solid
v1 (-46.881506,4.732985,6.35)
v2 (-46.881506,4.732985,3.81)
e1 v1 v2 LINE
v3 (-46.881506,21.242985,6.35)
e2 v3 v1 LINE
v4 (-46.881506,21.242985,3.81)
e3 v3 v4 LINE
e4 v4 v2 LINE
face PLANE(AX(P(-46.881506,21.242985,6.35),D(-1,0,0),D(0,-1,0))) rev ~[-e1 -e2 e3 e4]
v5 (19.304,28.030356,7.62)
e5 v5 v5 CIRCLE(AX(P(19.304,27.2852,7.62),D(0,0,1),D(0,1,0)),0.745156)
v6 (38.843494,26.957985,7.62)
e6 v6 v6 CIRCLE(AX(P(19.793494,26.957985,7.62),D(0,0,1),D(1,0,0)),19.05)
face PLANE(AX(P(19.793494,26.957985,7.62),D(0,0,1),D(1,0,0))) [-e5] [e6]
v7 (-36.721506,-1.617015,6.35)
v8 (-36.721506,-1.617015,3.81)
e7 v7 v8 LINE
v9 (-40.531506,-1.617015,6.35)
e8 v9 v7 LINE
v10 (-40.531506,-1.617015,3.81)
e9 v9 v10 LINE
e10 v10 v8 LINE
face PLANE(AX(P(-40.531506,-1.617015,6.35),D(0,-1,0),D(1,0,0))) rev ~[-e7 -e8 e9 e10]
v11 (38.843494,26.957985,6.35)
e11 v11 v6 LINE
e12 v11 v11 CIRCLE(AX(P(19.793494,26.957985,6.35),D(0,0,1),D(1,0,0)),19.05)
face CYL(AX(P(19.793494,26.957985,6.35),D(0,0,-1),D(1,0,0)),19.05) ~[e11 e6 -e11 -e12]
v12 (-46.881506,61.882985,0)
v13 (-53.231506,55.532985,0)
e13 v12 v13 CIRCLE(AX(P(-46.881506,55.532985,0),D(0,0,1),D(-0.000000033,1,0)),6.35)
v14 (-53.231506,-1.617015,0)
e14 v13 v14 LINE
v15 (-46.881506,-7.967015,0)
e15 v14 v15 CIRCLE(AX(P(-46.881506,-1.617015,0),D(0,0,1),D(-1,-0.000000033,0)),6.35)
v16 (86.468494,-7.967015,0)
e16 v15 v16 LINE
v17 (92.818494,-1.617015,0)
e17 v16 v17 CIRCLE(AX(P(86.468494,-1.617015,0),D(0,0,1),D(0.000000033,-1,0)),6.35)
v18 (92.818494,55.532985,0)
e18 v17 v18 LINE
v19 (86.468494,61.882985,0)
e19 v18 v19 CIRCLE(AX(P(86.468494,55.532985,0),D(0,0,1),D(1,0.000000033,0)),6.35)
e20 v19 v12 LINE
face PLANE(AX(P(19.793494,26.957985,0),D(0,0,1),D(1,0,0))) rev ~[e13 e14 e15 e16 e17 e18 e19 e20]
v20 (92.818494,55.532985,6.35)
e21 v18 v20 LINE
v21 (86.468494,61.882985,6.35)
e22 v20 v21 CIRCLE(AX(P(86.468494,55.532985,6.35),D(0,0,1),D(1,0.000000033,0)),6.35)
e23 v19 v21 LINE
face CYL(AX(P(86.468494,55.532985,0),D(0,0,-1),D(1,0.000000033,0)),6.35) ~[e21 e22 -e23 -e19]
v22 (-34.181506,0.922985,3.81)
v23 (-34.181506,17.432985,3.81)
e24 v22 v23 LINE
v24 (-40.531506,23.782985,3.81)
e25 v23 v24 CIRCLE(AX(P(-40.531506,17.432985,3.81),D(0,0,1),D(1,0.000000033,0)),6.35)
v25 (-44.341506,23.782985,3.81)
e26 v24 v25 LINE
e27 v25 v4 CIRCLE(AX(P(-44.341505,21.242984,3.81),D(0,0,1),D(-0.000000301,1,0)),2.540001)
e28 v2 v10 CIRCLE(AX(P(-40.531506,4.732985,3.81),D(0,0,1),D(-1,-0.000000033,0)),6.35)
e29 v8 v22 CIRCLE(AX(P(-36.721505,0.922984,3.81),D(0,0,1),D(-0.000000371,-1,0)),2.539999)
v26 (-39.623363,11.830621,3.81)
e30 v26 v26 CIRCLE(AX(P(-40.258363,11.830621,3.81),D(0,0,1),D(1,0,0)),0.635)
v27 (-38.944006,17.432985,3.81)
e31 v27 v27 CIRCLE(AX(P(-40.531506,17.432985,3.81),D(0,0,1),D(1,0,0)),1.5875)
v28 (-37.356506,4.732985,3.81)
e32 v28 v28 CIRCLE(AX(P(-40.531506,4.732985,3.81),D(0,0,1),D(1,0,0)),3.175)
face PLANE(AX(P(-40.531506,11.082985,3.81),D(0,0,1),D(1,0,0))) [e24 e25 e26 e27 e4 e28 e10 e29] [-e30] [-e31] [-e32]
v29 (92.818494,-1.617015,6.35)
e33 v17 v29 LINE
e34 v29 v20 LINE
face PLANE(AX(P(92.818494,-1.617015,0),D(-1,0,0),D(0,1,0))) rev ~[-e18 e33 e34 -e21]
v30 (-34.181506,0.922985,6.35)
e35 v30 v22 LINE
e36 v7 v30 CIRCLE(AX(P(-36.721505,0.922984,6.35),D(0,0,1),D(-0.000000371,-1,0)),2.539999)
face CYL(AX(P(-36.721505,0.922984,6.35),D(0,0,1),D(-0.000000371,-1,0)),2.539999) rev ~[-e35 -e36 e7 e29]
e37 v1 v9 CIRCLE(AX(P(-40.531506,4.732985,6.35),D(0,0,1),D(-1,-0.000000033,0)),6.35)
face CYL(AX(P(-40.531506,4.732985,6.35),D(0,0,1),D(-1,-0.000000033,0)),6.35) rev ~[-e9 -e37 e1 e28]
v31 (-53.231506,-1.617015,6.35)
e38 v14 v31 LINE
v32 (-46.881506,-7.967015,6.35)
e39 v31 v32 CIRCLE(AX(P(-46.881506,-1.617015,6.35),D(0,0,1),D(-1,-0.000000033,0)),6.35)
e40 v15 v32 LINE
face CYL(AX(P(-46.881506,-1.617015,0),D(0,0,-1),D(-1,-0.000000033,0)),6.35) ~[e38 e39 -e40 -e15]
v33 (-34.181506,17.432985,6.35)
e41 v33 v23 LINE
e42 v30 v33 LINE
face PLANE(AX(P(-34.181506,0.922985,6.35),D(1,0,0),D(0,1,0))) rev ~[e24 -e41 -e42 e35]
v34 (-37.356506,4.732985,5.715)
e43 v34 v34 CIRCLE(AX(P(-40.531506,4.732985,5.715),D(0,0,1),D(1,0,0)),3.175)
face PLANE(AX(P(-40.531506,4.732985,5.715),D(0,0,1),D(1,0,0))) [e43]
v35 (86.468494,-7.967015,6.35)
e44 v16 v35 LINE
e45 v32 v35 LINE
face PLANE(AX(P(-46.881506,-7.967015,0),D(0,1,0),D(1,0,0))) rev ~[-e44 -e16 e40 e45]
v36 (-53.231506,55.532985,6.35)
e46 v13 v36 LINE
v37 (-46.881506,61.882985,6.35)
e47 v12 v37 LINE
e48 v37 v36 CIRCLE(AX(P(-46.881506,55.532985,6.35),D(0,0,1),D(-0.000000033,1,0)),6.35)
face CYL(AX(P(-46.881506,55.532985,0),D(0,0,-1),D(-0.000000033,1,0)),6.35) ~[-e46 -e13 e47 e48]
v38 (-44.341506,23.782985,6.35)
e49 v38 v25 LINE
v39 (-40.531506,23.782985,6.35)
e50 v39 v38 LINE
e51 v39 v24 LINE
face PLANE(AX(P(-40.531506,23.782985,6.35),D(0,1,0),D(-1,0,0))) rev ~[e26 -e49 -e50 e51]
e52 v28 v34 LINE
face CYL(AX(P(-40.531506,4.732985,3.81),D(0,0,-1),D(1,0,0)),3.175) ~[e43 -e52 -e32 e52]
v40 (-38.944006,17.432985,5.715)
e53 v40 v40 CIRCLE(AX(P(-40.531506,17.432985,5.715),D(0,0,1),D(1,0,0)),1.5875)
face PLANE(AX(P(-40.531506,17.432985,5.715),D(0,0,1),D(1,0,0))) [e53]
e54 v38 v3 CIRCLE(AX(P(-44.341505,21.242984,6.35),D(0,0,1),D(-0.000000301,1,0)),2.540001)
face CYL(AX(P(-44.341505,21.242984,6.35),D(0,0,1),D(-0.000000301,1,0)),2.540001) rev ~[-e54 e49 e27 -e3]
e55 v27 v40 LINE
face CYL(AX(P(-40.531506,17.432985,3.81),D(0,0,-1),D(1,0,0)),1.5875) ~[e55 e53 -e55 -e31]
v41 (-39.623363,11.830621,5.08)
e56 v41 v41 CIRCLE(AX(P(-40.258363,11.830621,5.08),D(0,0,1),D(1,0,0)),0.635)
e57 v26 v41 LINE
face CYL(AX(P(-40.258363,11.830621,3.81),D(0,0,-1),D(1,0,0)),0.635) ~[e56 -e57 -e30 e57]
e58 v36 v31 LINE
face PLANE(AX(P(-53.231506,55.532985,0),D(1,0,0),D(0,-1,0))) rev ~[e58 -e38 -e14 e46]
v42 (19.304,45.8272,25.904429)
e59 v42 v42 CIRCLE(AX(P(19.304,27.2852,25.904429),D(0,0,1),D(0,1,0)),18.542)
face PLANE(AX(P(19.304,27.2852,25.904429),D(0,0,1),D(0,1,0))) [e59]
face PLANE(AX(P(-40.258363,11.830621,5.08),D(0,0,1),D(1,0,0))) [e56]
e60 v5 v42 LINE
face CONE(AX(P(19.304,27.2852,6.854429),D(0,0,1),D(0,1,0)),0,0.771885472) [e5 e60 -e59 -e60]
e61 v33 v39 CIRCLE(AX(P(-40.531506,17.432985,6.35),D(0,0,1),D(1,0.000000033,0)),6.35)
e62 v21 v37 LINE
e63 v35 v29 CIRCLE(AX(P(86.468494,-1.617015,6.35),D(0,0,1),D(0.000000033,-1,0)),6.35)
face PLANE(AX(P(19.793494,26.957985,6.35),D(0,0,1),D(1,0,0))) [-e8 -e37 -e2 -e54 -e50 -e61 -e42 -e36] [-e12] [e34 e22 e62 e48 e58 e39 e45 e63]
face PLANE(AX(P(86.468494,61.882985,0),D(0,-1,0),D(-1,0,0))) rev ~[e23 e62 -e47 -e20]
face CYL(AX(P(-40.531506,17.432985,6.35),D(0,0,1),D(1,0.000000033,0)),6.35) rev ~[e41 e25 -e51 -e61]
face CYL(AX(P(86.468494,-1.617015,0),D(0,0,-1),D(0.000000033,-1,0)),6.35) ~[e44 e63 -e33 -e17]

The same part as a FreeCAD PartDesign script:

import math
import FreeCAD as App
import Part
import Sketcher
Q = App.Units.Quantity


def add_polygon(sketch, points):
    """Adds a closed chain of lines whose ends are joined by coincident constraints."""
    first, n = sketch.GeometryCount, len(points)
    for a, b in zip(points, points[1:] + points[:1]):
        sketch.addGeometry(Part.LineSegment(App.Vector(*a, 0), App.Vector(*b, 0)), False)
    for i in range(n):
        sketch.addConstraint(Sketcher.Constraint("Coincident", first + i, 2, first + (i + 1) % n, 1))

doc = App.newDocument("Part")
body = doc.addObject("PartDesign::Body", "Body")

# Sketch on XY plane
sketch1 = body.newObject("Sketcher::SketchObject", "Sketch")
sketch1.AttachmentSupport = (doc.getObject("XY_Plane"), [""])
sketch1.MapMode = "FlatFace"
sketch1.addGeometry([
    Part.LineSegment(App.Vector(86, 62, 0), App.Vector(-47, 62, 0)),  # 0
    Part.ArcOfCircle(Part.Circle(App.Vector(-47, 56, 0), App.Vector(0, 0, 1), 6), math.radians(90), math.radians(180)),  # 1
    Part.LineSegment(App.Vector(-53, 56, 0), App.Vector(-53, -2, 0)),  # 2
    Part.ArcOfCircle(Part.Circle(App.Vector(-47, -2, 0), App.Vector(0, 0, 1), 6), math.radians(-180), math.radians(-90)),  # 3
    Part.LineSegment(App.Vector(-47, -8, 0), App.Vector(86, -8, 0)),  # 4
    Part.ArcOfCircle(Part.Circle(App.Vector(86, -2, 0), App.Vector(0, 0, 1), 6), math.radians(-90), math.radians(0)),  # 5
    Part.LineSegment(App.Vector(93, -2, 0), App.Vector(93, 56, 0)),  # 6
    Part.ArcOfCircle(Part.Circle(App.Vector(86, 56, 0), App.Vector(0, 0, 1), 6), math.radians(0), math.radians(90)),  # 7
], False)
sketch1.addConstraint([
    Sketcher.Constraint("Tangent", 0, 2, 1, 1),
    Sketcher.Constraint("Tangent", 1, 2, 2, 1),
    Sketcher.Constraint("Tangent", 2, 2, 3, 1),
    Sketcher.Constraint("Tangent", 3, 2, 4, 1),
    Sketcher.Constraint("Tangent", 4, 2, 5, 1),
    Sketcher.Constraint("Tangent", 5, 2, 6, 1),
    Sketcher.Constraint("Tangent", 6, 2, 7, 1),
    Sketcher.Constraint("Tangent", 7, 2, 0, 1),
    Sketcher.Constraint("Horizontal", 0),
    Sketcher.Constraint("Vertical", 2),
    Sketcher.Constraint("Horizontal", 4),
    Sketcher.Constraint("Vertical", 6),
    Sketcher.Constraint("Equal", 1, 3),
    Sketcher.Constraint("Equal", 3, 5),
    Sketcher.Constraint("Equal", 5, 7),
    Sketcher.Constraint("Radius", 1, Q("0.25 in")),
    Sketcher.Constraint("DistanceX", 0, 2, 0, 1, Q("5.25 in")),
    Sketcher.Constraint("DistanceY", 2, 2, 2, 1, Q("2.25 in")),
    Sketcher.Constraint("DistanceX", 1, 3, -1, 1, Q("46.881506 mm")),
    Sketcher.Constraint("DistanceY", -1, 1, 1, 3, Q("55.532985 mm")),
])
pad1 = body.newObject("PartDesign::Pad", "Pad")
pad1.Profile = sketch1
pad1.Length = Q("0.25 in")

# Sketch on XY plane
sketch2 = body.newObject("Sketcher::SketchObject", "Sketch001")
sketch2.AttachmentSupport = (doc.getObject("XY_Plane"), [""])
sketch2.MapMode = "FlatFace"
sketch2.AttachmentOffset = App.Placement(App.Vector(0, 0, 0.25 * 25.4), App.Rotation())
sketch2.addGeometry([
    Part.ArcOfCircle(Part.Circle(App.Vector(-40.5, 4.7, 0), App.Vector(0, 0, 1), 6.4), math.radians(-180), math.radians(-90)),  # 0
    Part.LineSegment(App.Vector(-40.5, -1.6, 0), App.Vector(-36.7, -1.6, 0)),  # 1
    Part.ArcOfCircle(Part.Circle(App.Vector(-36.7, 0.9, 0), App.Vector(0, 0, 1), 2.5), math.radians(-90), math.radians(0)),  # 2
    Part.LineSegment(App.Vector(-34.2, 0.9, 0), App.Vector(-34.2, 17.4, 0)),  # 3
    Part.ArcOfCircle(Part.Circle(App.Vector(-40.5, 17.4, 0), App.Vector(0, 0, 1), 6.4), math.radians(0), math.radians(90)),  # 4
    Part.LineSegment(App.Vector(-40.5, 23.8, 0), App.Vector(-44.3, 23.8, 0)),  # 5
    Part.ArcOfCircle(Part.Circle(App.Vector(-44.3, 21.2, 0), App.Vector(0, 0, 1), 2.5), math.radians(90), math.radians(180)),  # 6
    Part.LineSegment(App.Vector(-46.9, 21.2, 0), App.Vector(-46.9, 4.7, 0)),  # 7
], False)
sketch2.addConstraint([
    Sketcher.Constraint("Tangent", 0, 2, 1, 1),
    Sketcher.Constraint("Tangent", 1, 2, 2, 1),
    Sketcher.Constraint("Tangent", 2, 2, 3, 1),
    Sketcher.Constraint("Tangent", 3, 2, 4, 1),
    Sketcher.Constraint("Tangent", 4, 2, 5, 1),
    Sketcher.Constraint("Tangent", 5, 2, 6, 1),
    Sketcher.Constraint("Tangent", 6, 2, 7, 1),
    Sketcher.Constraint("Tangent", 7, 2, 0, 1),
    Sketcher.Constraint("Horizontal", 1),
    Sketcher.Constraint("Vertical", 3),
    Sketcher.Constraint("Horizontal", 5),
    Sketcher.Constraint("Vertical", 7),
    Sketcher.Constraint("Equal", 0, 4),
    Sketcher.Constraint("Equal", 2, 6),
    Sketcher.Constraint("Vertical", 0, 3, 4, 3),
    Sketcher.Constraint("Radius", 2, Q("0.1 in")),
    Sketcher.Constraint("Radius", 0, Q("0.25 in")),
    Sketcher.Constraint("DistanceY", 3, 1, 3, 2, Q("0.65 in")),
    Sketcher.Constraint("DistanceX", 0, 3, -1, 1, Q("40.531506 mm")),
    Sketcher.Constraint("DistanceY", -1, 1, 0, 3, Q("4.732985 mm")),
])
pocket1 = body.newObject("PartDesign::Pocket", "Pocket")
pocket1.Profile = sketch2
pocket1.Length = Q("0.1 in")

# Sketch on XY plane
sketch3 = body.newObject("Sketcher::SketchObject", "Sketch002")
sketch3.AttachmentSupport = (doc.getObject("XY_Plane"), [""])
sketch3.MapMode = "FlatFace"
sketch3.AttachmentOffset = App.Placement(App.Vector(0, 0, 0.15 * 25.4), App.Rotation())
sketch3.addGeometry([
    Part.Circle(App.Vector(-40.5, 4.7, 0), App.Vector(0, 0, 1), 3.2),
    Part.Circle(App.Vector(-40.5, 17.4, 0), App.Vector(0, 0, 1), 1.6),
], False)
sketch3.addConstraint([
    Sketcher.Constraint("Vertical", 0, 3, 1, 3),
    Sketcher.Constraint("Diameter", 0, Q("0.25 in")),
    Sketcher.Constraint("Diameter", 1, Q("0.125 in")),
    Sketcher.Constraint("DistanceY", 0, 3, 1, 3, Q("0.5 in")),
    Sketcher.Constraint("DistanceX", 0, 3, -1, 1, Q("40.531506 mm")),
    Sketcher.Constraint("DistanceY", -1, 1, 0, 3, Q("4.732985 mm")),
])
pad2 = body.newObject("PartDesign::Pad", "Pad001")
pad2.Profile = sketch3
pad2.Length = Q("0.075 in")

# Sketch on XY plane
sketch4 = body.newObject("Sketcher::SketchObject", "Sketch003")
sketch4.AttachmentSupport = (doc.getObject("XY_Plane"), [""])
sketch4.MapMode = "FlatFace"
sketch4.AttachmentOffset = App.Placement(App.Vector(0, 0, 0.15 * 25.4), App.Rotation())
sketch4.addGeometry(Part.Circle(App.Vector(-40.3, 11.8, 0), App.Vector(0, 0, 1), 0.6), False)
sketch4.addConstraint([
    Sketcher.Constraint("Diameter", 0, Q("0.05 in")),
    Sketcher.Constraint("DistanceY", -1, 1, 0, 3, Q("11.830621 mm")),
    Sketcher.Constraint("DistanceX", 0, 3, -1, 1, Q("40.258363 mm")),
])
pad3 = body.newObject("PartDesign::Pad", "Pad002")
pad3.Profile = sketch4
pad3.Length = Q("0.05 in")

# Sketch on XY plane
sketch5 = body.newObject("Sketcher::SketchObject", "Sketch004")
sketch5.AttachmentSupport = (doc.getObject("XY_Plane"), [""])
sketch5.MapMode = "FlatFace"
sketch5.AttachmentOffset = App.Placement(App.Vector(0, 0, 0.25 * 25.4), App.Rotation())
sketch5.addGeometry(Part.Circle(App.Vector(20, 27, 0), App.Vector(0, 0, 1), 19), False)
sketch5.addConstraint([
    Sketcher.Constraint("Diameter", 0, Q("1.5 in")),
    Sketcher.Constraint("DistanceX", -1, 1, 0, 3, Q("19.793494 mm")),
    Sketcher.Constraint("DistanceY", -1, 1, 0, 3, Q("26.957985 mm")),
])
pad4 = body.newObject("PartDesign::Pad", "Pad003")
pad4.Profile = sketch5
pad4.Length = Q("0.05 in")

# Sketch on YZ plane
sketch6 = body.newObject("Sketcher::SketchObject", "Sketch005")
sketch6.AttachmentSupport = (doc.getObject("YZ_Plane"), [""])
sketch6.MapMode = "FlatFace"
sketch6.AttachmentOffset = App.Placement(App.Vector(0, 0, 0.76 * 25.4), App.Rotation())
add_polygon(sketch6, [(27, 26), (27, 7), (46, 26)])  # lines 0-2
sketch6.addGeometry(Part.LineSegment(App.Vector(27, 7, 0), App.Vector(27, 26, 0)), True)  # axis
sketch6.addConstraint([
    Sketcher.Constraint("Vertical", 0),
    Sketcher.Constraint("Horizontal", 2),
    Sketcher.Constraint("Vertical", 3),
    Sketcher.Constraint("Coincident", 3, 1, 0, 2),
    Sketcher.Constraint("Horizontal", 1, 2, 3, 2),
    Sketcher.Constraint("DistanceX", 2, 2, 2, 1, Q("0.73 in")),
    Sketcher.Constraint("DistanceY", 0, 2, 0, 1, Q("0.75 in")),
    Sketcher.Constraint("DistanceX", -1, 1, 0, 2, Q("27.2852 mm")),
    Sketcher.Constraint("DistanceY", -1, 1, 0, 2, Q("6.854429 mm")),
])
revolution = body.newObject("PartDesign::Revolution", "Revolution")
revolution.Profile = sketch6
revolution.ReferenceAxis = (sketch6, ["Axis0"])
revolution.Angle = 360

doc.recompute()
